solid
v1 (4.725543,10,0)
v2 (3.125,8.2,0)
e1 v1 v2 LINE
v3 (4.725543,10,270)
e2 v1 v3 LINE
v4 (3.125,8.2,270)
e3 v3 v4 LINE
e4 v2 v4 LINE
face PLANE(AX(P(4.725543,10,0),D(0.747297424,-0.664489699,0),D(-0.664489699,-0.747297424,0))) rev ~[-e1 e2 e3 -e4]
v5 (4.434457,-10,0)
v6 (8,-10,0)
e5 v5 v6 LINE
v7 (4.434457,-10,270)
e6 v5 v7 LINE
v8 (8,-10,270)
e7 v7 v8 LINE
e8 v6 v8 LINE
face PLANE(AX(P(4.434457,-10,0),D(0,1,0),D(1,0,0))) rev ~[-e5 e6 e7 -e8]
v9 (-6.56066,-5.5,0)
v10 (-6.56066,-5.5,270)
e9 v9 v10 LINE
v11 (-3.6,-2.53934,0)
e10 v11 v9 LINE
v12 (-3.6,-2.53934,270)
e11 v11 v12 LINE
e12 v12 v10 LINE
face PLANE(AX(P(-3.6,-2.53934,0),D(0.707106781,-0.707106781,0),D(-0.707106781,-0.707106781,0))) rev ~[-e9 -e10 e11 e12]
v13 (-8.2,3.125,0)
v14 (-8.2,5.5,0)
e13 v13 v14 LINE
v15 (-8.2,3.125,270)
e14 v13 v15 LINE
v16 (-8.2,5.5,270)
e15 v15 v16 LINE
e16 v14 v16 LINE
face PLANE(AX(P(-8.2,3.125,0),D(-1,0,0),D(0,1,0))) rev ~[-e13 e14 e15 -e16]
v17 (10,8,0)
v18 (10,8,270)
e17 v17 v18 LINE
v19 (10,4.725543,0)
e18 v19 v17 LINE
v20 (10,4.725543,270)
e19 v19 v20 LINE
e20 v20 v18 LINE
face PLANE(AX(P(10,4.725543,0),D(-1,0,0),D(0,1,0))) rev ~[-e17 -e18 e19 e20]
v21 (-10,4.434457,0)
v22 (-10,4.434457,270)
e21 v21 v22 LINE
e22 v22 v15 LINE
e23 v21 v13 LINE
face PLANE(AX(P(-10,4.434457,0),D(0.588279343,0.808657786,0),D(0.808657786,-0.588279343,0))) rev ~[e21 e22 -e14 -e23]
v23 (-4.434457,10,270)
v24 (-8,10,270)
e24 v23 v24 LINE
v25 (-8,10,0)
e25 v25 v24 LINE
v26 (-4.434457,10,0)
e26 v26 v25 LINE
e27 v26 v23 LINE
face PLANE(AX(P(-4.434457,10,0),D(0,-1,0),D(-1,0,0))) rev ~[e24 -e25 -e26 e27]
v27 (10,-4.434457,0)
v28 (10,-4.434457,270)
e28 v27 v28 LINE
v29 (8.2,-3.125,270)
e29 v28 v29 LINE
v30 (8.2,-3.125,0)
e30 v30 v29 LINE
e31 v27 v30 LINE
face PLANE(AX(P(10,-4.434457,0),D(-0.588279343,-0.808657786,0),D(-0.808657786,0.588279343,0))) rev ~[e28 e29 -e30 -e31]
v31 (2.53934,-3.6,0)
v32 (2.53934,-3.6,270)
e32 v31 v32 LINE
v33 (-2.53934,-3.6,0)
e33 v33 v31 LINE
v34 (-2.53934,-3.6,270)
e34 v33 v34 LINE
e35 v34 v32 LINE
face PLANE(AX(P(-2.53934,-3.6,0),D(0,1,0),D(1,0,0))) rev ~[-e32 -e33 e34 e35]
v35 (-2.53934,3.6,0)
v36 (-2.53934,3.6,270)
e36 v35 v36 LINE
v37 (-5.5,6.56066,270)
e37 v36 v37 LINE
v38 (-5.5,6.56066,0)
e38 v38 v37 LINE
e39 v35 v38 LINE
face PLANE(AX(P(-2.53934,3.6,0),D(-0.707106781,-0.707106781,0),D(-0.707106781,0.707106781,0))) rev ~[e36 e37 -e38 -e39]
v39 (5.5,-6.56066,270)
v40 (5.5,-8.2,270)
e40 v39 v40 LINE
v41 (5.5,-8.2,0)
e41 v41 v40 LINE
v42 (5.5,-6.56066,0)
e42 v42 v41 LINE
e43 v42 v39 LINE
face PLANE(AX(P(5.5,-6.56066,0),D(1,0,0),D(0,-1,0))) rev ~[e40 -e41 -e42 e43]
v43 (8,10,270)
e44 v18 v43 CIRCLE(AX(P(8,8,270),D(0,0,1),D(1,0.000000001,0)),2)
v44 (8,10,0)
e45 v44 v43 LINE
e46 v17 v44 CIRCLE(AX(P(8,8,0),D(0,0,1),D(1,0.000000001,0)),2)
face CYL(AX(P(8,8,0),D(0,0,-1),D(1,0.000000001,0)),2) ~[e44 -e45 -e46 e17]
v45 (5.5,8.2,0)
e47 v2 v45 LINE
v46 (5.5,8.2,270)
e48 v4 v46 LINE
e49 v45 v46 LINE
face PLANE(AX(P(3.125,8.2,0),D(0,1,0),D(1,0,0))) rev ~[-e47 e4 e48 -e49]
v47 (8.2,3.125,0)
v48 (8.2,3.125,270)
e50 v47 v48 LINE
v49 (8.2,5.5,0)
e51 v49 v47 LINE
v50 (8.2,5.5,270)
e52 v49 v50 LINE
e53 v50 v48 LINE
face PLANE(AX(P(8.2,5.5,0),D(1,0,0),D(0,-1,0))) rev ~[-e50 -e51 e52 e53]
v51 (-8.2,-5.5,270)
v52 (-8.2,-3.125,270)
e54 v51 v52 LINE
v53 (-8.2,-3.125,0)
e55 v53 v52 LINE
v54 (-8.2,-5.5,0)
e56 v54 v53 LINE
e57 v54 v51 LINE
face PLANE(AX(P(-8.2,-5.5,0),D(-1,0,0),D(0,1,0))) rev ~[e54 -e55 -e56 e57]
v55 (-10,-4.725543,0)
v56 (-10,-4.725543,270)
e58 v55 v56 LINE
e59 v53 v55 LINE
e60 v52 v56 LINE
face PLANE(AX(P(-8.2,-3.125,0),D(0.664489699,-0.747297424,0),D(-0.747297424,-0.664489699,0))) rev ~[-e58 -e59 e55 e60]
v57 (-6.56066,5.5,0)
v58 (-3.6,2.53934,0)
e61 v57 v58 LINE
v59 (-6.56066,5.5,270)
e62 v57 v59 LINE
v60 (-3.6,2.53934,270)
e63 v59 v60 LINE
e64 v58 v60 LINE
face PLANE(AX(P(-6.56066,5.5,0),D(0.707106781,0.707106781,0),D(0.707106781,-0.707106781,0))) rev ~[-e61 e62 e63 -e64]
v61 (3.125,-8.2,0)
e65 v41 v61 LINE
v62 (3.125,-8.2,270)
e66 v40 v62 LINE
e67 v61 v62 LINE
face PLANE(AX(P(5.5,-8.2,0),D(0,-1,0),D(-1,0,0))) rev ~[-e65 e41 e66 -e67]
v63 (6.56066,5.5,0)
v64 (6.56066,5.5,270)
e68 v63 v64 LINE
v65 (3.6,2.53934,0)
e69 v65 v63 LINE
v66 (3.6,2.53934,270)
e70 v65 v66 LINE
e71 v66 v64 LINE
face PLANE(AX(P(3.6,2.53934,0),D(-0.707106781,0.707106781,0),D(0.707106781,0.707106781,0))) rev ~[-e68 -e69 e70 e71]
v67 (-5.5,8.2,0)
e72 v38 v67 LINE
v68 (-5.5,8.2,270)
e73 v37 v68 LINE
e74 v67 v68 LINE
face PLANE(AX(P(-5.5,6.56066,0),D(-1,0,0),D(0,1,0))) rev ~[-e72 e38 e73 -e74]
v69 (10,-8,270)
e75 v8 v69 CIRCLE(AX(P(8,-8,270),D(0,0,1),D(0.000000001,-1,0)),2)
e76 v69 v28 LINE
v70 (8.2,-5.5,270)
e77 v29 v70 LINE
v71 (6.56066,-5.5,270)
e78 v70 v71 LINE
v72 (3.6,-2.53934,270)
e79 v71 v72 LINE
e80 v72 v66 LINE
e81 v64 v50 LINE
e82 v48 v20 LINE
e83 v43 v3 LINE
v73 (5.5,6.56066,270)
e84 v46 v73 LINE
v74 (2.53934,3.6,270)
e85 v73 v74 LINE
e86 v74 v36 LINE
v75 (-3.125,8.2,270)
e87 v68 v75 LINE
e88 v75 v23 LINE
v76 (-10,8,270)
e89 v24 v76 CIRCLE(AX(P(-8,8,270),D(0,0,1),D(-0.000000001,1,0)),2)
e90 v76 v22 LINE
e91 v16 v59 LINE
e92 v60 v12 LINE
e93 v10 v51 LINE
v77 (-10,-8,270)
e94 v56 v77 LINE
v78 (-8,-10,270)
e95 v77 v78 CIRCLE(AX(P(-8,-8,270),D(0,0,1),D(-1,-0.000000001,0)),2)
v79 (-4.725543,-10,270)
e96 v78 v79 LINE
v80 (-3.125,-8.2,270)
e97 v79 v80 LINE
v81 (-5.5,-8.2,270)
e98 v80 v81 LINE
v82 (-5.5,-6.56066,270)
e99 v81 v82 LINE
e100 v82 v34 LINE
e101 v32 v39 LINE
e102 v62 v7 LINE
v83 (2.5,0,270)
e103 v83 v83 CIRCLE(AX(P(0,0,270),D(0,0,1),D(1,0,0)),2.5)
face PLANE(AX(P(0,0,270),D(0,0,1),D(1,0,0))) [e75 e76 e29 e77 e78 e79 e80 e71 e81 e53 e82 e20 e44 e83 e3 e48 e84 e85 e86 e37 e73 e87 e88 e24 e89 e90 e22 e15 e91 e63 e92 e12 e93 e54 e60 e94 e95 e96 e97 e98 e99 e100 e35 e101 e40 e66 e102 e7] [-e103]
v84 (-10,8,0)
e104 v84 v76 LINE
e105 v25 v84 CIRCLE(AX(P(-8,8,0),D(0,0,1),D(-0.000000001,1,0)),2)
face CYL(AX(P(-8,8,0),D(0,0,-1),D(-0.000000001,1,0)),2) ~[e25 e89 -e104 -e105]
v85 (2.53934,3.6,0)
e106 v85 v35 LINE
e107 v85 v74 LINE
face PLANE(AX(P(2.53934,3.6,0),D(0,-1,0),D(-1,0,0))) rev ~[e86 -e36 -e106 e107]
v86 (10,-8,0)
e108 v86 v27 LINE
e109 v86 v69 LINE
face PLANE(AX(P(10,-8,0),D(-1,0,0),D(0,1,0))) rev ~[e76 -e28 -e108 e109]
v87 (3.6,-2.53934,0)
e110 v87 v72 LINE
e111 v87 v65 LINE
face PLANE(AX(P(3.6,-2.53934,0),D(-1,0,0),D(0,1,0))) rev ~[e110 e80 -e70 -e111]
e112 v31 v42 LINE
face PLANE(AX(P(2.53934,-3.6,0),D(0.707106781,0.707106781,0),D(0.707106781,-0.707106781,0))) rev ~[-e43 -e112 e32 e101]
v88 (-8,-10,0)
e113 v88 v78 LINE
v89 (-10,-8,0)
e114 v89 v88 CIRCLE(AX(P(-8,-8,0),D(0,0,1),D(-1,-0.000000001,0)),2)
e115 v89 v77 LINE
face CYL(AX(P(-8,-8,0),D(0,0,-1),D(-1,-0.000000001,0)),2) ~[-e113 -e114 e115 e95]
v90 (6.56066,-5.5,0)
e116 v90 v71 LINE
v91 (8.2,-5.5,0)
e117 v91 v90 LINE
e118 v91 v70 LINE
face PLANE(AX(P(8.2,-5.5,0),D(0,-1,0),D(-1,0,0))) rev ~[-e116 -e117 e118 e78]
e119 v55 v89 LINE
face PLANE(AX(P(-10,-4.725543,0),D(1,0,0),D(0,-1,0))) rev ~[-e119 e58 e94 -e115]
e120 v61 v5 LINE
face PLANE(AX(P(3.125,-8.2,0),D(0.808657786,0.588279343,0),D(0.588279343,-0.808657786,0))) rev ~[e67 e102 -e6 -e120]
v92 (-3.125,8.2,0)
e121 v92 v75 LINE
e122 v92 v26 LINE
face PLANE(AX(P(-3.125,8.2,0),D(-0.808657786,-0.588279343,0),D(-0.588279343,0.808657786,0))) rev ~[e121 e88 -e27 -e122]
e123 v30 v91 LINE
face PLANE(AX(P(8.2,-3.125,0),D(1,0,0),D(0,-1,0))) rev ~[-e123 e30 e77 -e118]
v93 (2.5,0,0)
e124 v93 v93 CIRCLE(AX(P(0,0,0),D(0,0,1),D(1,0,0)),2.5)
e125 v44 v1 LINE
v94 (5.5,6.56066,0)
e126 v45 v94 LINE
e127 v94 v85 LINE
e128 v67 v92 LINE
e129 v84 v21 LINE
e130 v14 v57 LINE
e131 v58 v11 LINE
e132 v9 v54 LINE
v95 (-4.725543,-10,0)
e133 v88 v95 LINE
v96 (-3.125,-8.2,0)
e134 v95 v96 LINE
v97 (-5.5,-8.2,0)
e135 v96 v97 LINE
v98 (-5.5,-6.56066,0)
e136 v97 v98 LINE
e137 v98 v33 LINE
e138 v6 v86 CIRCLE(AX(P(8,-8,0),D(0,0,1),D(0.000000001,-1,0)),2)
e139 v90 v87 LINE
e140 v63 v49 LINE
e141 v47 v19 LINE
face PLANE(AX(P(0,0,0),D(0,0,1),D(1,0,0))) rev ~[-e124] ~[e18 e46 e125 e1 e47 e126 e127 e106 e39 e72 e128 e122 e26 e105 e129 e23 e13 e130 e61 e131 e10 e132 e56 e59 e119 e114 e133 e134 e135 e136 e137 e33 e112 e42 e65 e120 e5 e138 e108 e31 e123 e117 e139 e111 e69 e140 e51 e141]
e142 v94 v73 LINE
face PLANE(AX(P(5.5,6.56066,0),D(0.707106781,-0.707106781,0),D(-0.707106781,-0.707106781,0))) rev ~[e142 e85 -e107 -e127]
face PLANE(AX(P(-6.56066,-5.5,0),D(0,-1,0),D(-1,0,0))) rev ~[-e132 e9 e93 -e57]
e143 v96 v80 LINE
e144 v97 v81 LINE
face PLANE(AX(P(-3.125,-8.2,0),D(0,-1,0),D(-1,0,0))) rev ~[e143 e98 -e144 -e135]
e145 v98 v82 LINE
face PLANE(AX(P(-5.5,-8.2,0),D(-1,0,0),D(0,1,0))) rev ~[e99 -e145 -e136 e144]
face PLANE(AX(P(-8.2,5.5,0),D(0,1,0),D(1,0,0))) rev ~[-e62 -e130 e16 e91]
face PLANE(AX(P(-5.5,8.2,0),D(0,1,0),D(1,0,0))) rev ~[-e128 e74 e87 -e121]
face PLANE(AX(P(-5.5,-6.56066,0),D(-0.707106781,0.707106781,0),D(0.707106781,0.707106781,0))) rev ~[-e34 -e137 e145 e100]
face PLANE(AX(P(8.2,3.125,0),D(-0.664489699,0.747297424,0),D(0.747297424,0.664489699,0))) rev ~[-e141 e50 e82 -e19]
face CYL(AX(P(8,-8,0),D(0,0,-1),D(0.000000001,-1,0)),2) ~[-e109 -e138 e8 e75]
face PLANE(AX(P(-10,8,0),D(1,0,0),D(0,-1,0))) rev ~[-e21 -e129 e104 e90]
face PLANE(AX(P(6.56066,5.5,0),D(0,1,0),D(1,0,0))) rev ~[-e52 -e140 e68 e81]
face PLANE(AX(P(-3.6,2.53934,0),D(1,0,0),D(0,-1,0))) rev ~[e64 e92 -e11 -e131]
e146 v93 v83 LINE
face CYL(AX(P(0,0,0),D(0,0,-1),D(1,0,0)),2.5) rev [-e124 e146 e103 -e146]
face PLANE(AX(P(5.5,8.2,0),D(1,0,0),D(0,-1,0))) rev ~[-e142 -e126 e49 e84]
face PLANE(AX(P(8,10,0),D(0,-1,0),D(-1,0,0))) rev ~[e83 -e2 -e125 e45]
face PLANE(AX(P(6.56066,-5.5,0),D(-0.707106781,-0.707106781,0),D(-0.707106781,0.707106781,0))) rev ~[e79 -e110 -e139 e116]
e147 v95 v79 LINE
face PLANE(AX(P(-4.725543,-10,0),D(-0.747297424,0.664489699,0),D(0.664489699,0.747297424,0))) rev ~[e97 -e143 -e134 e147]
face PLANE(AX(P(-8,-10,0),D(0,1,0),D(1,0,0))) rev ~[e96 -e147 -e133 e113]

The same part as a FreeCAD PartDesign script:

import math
import FreeCAD as App
import Part
import Sketcher

V = App.Vector

doc = App.newDocument("Part")
body = doc.addObject("PartDesign::Body", "Body")

# Sketch on XY plane
sketch1 = body.newObject("Sketcher::SketchObject", "Sketch")
sketch1.AttachmentSupport = (doc.getObject("XY_Plane"), [""])
sketch1.MapMode = "FlatFace"
sketch1.addGeometry(Part.LineSegment(V(-4.725543, -10, 0), V(-3.125, -8.2, 0)), False)
sketch1.addGeometry(Part.LineSegment(V(-3.125, -8.2, 0), V(-5.5, -8.2, 0)), False)
sketch1.addGeometry(Part.LineSegment(V(-5.5, -8.2, 0), V(-5.5, -6.56066, 0)), False)
sketch1.addGeometry(Part.LineSegment(V(-5.5, -6.56066, 0), V(-2.53934, -3.6, 0)), False)
sketch1.addGeometry(Part.LineSegment(V(-2.53934, -3.6, 0), V(2.53934, -3.6, 0)), False)
sketch1.addGeometry(Part.LineSegment(V(2.53934, -3.6, 0), V(5.5, -6.56066, 0)), False)
sketch1.addGeometry(Part.LineSegment(V(5.5, -6.56066, 0), V(5.5, -8.2, 0)), False)
sketch1.addGeometry(Part.LineSegment(V(5.5, -8.2, 0), V(3.125, -8.2, 0)), False)
sketch1.addGeometry(Part.LineSegment(V(3.125, -8.2, 0), V(4.434457, -10, 0)), False)
sketch1.addGeometry(Part.LineSegment(V(4.434457, -10, 0), V(8, -10, 0)), False)
sketch1.addGeometry(Part.ArcOfCircle(Part.Circle(V(8, -8, 0), V(0, 0, 1), 2), math.radians(-90), math.radians(0)), False)
sketch1.addGeometry(Part.LineSegment(V(10, -8, 0), V(10, -4.434457, 0)), False)
sketch1.addGeometry(Part.LineSegment(V(10, -4.434457, 0), V(8.2, -3.125, 0)), False)
sketch1.addGeometry(Part.LineSegment(V(8.2, -3.125, 0), V(8.2, -5.5, 0)), False)
sketch1.addGeometry(Part.LineSegment(V(8.2, -5.5, 0), V(6.56066, -5.5, 0)), False)
sketch1.addGeometry(Part.LineSegment(V(6.56066, -5.5, 0), V(3.6, -2.53934, 0)), False)
sketch1.addGeometry(Part.LineSegment(V(3.6, -2.53934, 0), V(3.6, 2.53934, 0)), False)
sketch1.addGeometry(Part.LineSegment(V(3.6, 2.53934, 0), V(6.56066, 5.5, 0)), False)
sketch1.addGeometry(Part.LineSegment(V(6.56066, 5.5, 0), V(8.2, 5.5, 0)), False)
sketch1.addGeometry(Part.LineSegment(V(8.2, 5.5, 0), V(8.2, 3.125, 0)), False)
sketch1.addGeometry(Part.LineSegment(V(8.2, 3.125, 0), V(10, 4.725543, 0)), False)
sketch1.addGeometry(Part.LineSegment(V(10, 4.725543, 0), V(10, 8, 0)), False)
sketch1.addGeometry(Part.ArcOfCircle(Part.Circle(V(8, 8, 0), V(0, 0, 1), 2), math.radians(0), math.radians(90)), False)
sketch1.addGeometry(Part.LineSegment(V(8, 10, 0), V(4.725543, 10, 0)), False)
sketch1.addGeometry(Part.LineSegment(V(4.725543, 10, 0), V(3.125, 8.2, 0)), False)
sketch1.addGeometry(Part.LineSegment(V(3.125, 8.2, 0), V(5.5, 8.2, 0)), False)
sketch1.addGeometry(Part.LineSegment(V(5.5, 8.2, 0), V(5.5, 6.56066, 0)), False)
sketch1.addGeometry(Part.LineSegment(V(5.5, 6.56066, 0), V(2.53934, 3.6, 0)), False)
sketch1.addGeometry(Part.LineSegment(V(2.53934, 3.6, 0), V(-2.53934, 3.6, 0)), False)
sketch1.addGeometry(Part.LineSegment(V(-2.53934, 3.6, 0), V(-5.5, 6.56066, 0)), False)
sketch1.addGeometry(Part.LineSegment(V(-5.5, 6.56066, 0), V(-5.5, 8.2, 0)), False)
sketch1.addGeometry(Part.LineSegment(V(-5.5, 8.2, 0), V(-3.125, 8.2, 0)), False)
sketch1.addGeometry(Part.LineSegment(V(-3.125, 8.2, 0), V(-4.434457, 10, 0)), False)
sketch1.addGeometry(Part.LineSegment(V(-4.434457, 10, 0), V(-8, 10, 0)), False)
sketch1.addGeometry(Part.ArcOfCircle(Part.Circle(V(-8, 8, 0), V(0, 0, 1), 2), math.radians(90), math.radians(180)), False)
sketch1.addGeometry(Part.LineSegment(V(-10, 8, 0), V(-10, 4.434457, 0)), False)
sketch1.addGeometry(Part.LineSegment(V(-10, 4.434457, 0), V(-8.2, 3.125, 0)), False)
sketch1.addGeometry(Part.LineSegment(V(-8.2, 3.125, 0), V(-8.2, 5.5, 0)), False)
sketch1.addGeometry(Part.LineSegment(V(-8.2, 5.5, 0), V(-6.56066, 5.5, 0)), False)
sketch1.addGeometry(Part.LineSegment(V(-6.56066, 5.5, 0), V(-3.6, 2.53934, 0)), False)
sketch1.addGeometry(Part.LineSegment(V(-3.6, 2.53934, 0), V(-3.6, -2.53934, 0)), False)
sketch1.addGeometry(Part.LineSegment(V(-3.6, -2.53934, 0), V(-6.56066, -5.5, 0)), False)
sketch1.addGeometry(Part.LineSegment(V(-6.56066, -5.5, 0), V(-8.2, -5.5, 0)), False)
sketch1.addGeometry(Part.LineSegment(V(-8.2, -5.5, 0), V(-8.2, -3.125, 0)), False)
sketch1.addGeometry(Part.LineSegment(V(-8.2, -3.125, 0), V(-10, -4.725543, 0)), False)
sketch1.addGeometry(Part.LineSegment(V(-10, -4.725543, 0), V(-10, -8, 0)), False)
sketch1.addGeometry(Part.ArcOfCircle(Part.Circle(V(-8, -8, 0), V(0, 0, 1), 2), math.radians(-180), math.radians(-90)), False)
sketch1.addGeometry(Part.LineSegment(V(-8, -10, 0), V(-4.725543, -10, 0)), False)
sketch1.addGeometry(Part.Circle(V(0, 0, 0), V(0, 0, 1), 2.5), False)
sketch1.addConstraint(Sketcher.Constraint("Coincident", 0, 2, 1, 1))
sketch1.addConstraint(Sketcher.Constraint("Coincident", 1, 2, 2, 1))
sketch1.addConstraint(Sketcher.Constraint("Coincident", 2, 2, 3, 1))
sketch1.addConstraint(Sketcher.Constraint("Coincident", 3, 2, 4, 1))
sketch1.addConstraint(Sketcher.Constraint("Coincident", 4, 2, 5, 1))
sketch1.addConstraint(Sketcher.Constraint("Coincident", 5, 2, 6, 1))
sketch1.addConstraint(Sketcher.Constraint("Coincident", 6, 2, 7, 1))
sketch1.addConstraint(Sketcher.Constraint("Coincident", 7, 2, 8, 1))
sketch1.addConstraint(Sketcher.Constraint("Coincident", 8, 2, 9, 1))
sketch1.addConstraint(Sketcher.Constraint("Tangent", 9, 2, 10, 1))
sketch1.addConstraint(Sketcher.Constraint("Tangent", 10, 2, 11, 1))
sketch1.addConstraint(Sketcher.Constraint("Coincident", 11, 2, 12, 1))
sketch1.addConstraint(Sketcher.Constraint("Coincident", 12, 2, 13, 1))
sketch1.addConstraint(Sketcher.Constraint("Coincident", 13, 2, 14, 1))
sketch1.addConstraint(Sketcher.Constraint("Coincident", 14, 2, 15, 1))
sketch1.addConstraint(Sketcher.Constraint("Coincident", 15, 2, 16, 1))
sketch1.addConstraint(Sketcher.Constraint("Coincident", 16, 2, 17, 1))
sketch1.addConstraint(Sketcher.Constraint("Coincident", 17, 2, 18, 1))
sketch1.addConstraint(Sketcher.Constraint("Coincident", 18, 2, 19, 1))
sketch1.addConstraint(Sketcher.Constraint("Coincident", 19, 2, 20, 1))
sketch1.addConstraint(Sketcher.Constraint("Coincident", 20, 2, 21, 1))
sketch1.addConstraint(Sketcher.Constraint("Tangent", 21, 2, 22, 1))
sketch1.addConstraint(Sketcher.Constraint("Tangent", 22, 2, 23, 1))
sketch1.addConstraint(Sketcher.Constraint("Coincident", 23, 2, 24, 1))
sketch1.addConstraint(Sketcher.Constraint("Coincident", 24, 2, 25, 1))
sketch1.addConstraint(Sketcher.Constraint("Coincident", 25, 2, 26, 1))
sketch1.addConstraint(Sketcher.Constraint("Coincident", 26, 2, 27, 1))
sketch1.addConstraint(Sketcher.Constraint("Coincident", 27, 2, 28, 1))
sketch1.addConstraint(Sketcher.Constraint("Coincident", 28, 2, 29, 1))
sketch1.addConstraint(Sketcher.Constraint("Coincident", 29, 2, 30, 1))
sketch1.addConstraint(Sketcher.Constraint("Coincident", 30, 2, 31, 1))
sketch1.addConstraint(Sketcher.Constraint("Coincident", 31, 2, 32, 1))
sketch1.addConstraint(Sketcher.Constraint("Coincident", 32, 2, 33, 1))
sketch1.addConstraint(Sketcher.Constraint("Tangent", 33, 2, 34, 1))
sketch1.addConstraint(Sketcher.Constraint("Tangent", 34, 2, 35, 1))
sketch1.addConstraint(Sketcher.Constraint("Coincident", 35, 2, 36, 1))
sketch1.addConstraint(Sketcher.Constraint("Coincident", 36, 2, 37, 1))
sketch1.addConstraint(Sketcher.Constraint("Coincident", 37, 2, 38, 1))
sketch1.addConstraint(Sketcher.Constraint("Coincident", 38, 2, 39, 1))
sketch1.addConstraint(Sketcher.Constraint("Coincident", 39, 2, 40, 1))
sketch1.addConstraint(Sketcher.Constraint("Coincident", 40, 2, 41, 1))
sketch1.addConstraint(Sketcher.Constraint("Coincident", 41, 2, 42, 1))
sketch1.addConstraint(Sketcher.Constraint("Coincident", 42, 2, 43, 1))
sketch1.addConstraint(Sketcher.Constraint("Coincident", 43, 2, 44, 1))
sketch1.addConstraint(Sketcher.Constraint("Coincident", 44, 2, 45, 1))
sketch1.addConstraint(Sketcher.Constraint("Tangent", 45, 2, 46, 1))
sketch1.addConstraint(Sketcher.Constraint("Tangent", 46, 2, 47, 1))
sketch1.addConstraint(Sketcher.Constraint("Coincident", 47, 2, 0, 1))
sketch1.addConstraint(Sketcher.Constraint("Horizontal", 1))
sketch1.addConstraint(Sketcher.Constraint("Vertical", 2))
sketch1.addConstraint(Sketcher.Constraint("Horizontal", 4))
sketch1.addConstraint(Sketcher.Constraint("Vertical", 6))
sketch1.addConstraint(Sketcher.Constraint("Horizontal", 7))
sketch1.addConstraint(Sketcher.Constraint("Horizontal", 9))
sketch1.addConstraint(Sketcher.Constraint("Vertical", 11))
sketch1.addConstraint(Sketcher.Constraint("Vertical", 13))
sketch1.addConstraint(Sketcher.Constraint("Horizontal", 14))
sketch1.addConstraint(Sketcher.Constraint("Vertical", 16))
sketch1.addConstraint(Sketcher.Constraint("Horizontal", 18))
sketch1.addConstraint(Sketcher.Constraint("Vertical", 19))
sketch1.addConstraint(Sketcher.Constraint("Vertical", 21))
sketch1.addConstraint(Sketcher.Constraint("Horizontal", 23))
sketch1.addConstraint(Sketcher.Constraint("Horizontal", 25))
sketch1.addConstraint(Sketcher.Constraint("Vertical", 26))
sketch1.addConstraint(Sketcher.Constraint("Horizontal", 28))
sketch1.addConstraint(Sketcher.Constraint("Vertical", 30))
sketch1.addConstraint(Sketcher.Constraint("Horizontal", 31))
sketch1.addConstraint(Sketcher.Constraint("Horizontal", 33))
sketch1.addConstraint(Sketcher.Constraint("Vertical", 35))
sketch1.addConstraint(Sketcher.Constraint("Vertical", 37))
sketch1.addConstraint(Sketcher.Constraint("Horizontal", 38))
sketch1.addConstraint(Sketcher.Constraint("Vertical", 40))
sketch1.addConstraint(Sketcher.Constraint("Horizontal", 42))
sketch1.addConstraint(Sketcher.Constraint("Vertical", 43))
sketch1.addConstraint(Sketcher.Constraint("Vertical", 45))
sketch1.addConstraint(Sketcher.Constraint("Horizontal", 47))
sketch1.addConstraint(Sketcher.Constraint("Coincident", 48, 3, -1, 1))
sketch1.addConstraint(Sketcher.Constraint("Equal", 10, 22))
sketch1.addConstraint(Sketcher.Constraint("Equal", 22, 34))
sketch1.addConstraint(Sketcher.Constraint("Equal", 34, 46))
sketch1.addConstraint(Sketcher.Constraint("Symmetric", 10, 3, 34, 3, -1, 1))
sketch1.addConstraint(Sketcher.Constraint("Symmetric", 22, 3, 46, 3, -1, 1))
sketch1.addConstraint(Sketcher.Constraint("Symmetric", 0, 2, 24, 2, -1, 1))
sketch1.addConstraint(Sketcher.Constraint("Symmetric", 2, 2, 26, 2, -1, 1))
sketch1.addConstraint(Sketcher.Constraint("Symmetric", 3, 2, 27, 2, -1, 1))
sketch1.addConstraint(Sketcher.Constraint("Symmetric", 5, 2, 29, 2, -1, 1))
sketch1.addConstraint(Sketcher.Constraint("Symmetric", 7, 2, 31, 2, -1, 1))
sketch1.addConstraint(Sketcher.Constraint("Symmetric", 12, 2, 36, 2, -1, 1))
sketch1.addConstraint(Sketcher.Constraint("Symmetric", 14, 2, 38, 2, -1, 1))
sketch1.addConstraint(Sketcher.Constraint("Symmetric", 15, 2, 39, 2, -1, 1))
sketch1.addConstraint(Sketcher.Constraint("Symmetric", 17, 2, 41, 2, -1, 1))
sketch1.addConstraint(Sketcher.Constraint("Symmetric", 19, 2, 43, 2, -1, 1))
sketch1.addConstraint(Sketcher.Constraint("Symmetric", 22, 3, 34, 3, -2))
sketch1.addConstraint(Sketcher.Constraint("Symmetric", 2, 2, 5, 2, -2))
sketch1.addConstraint(Sketcher.Constraint("Symmetric", 0, 2, 7, 2, -2))
sketch1.addConstraint(Sketcher.Constraint("Symmetric", 19, 2, 36, 2, -2))
sketch1.addConstraint(Sketcher.Constraint("Symmetric", 17, 2, 38, 2, -2))
sketch1.addConstraint(Sketcher.Constraint("Perpendicular", 3, 5))
sketch1.addConstraint(Sketcher.Constraint("Parallel", 5, 15))
sketch1.addConstraint(Sketcher.Constraint("Perpendicular", 15, 17))
sketch1.addConstraint(Sketcher.Constraint("Parallel", 0, 24))
sketch1.addConstraint(Sketcher.Constraint("Perpendicular", 27, 29))
sketch1.addConstraint(Sketcher.Constraint("Parallel", 8, 32))
sketch1.addConstraint(Sketcher.Constraint("Parallel", 12, 36))
sketch1.addConstraint(Sketcher.Constraint("Perpendicular", 39, 41))
sketch1.addConstraint(Sketcher.Constraint("Parallel", 20, 44))
sketch1.addConstraint(Sketcher.Constraint("Horizontal", 16, 2, 39, 2))
sketch1.addConstraint(Sketcher.Constraint("Equal", 42, 2))
sketch1.addConstraint(Sketcher.Constraint("Equal", 33, 11))
sketch1.addConstraint(Sketcher.Constraint("Equal", 31, 13))
sketch1.addConstraint(Sketcher.Constraint("Equal", 28, 16))
sketch1.addConstraint(Sketcher.Constraint("Equal", 47, 21))
sketch1.addConstraint(Sketcher.Constraint("Equal", 8, 12))
sketch1.addConstraint(Sketcher.Constraint("Equal", 5, 15))
sketch1.addConstraint(Sketcher.Constraint("Equal", 0, 20))
sketch1.addConstraint(Sketcher.Constraint("Diameter", 48, 5.0))
sketch1.addConstraint(Sketcher.Constraint("Radius", 10, 2.0))
sketch1.addConstraint(Sketcher.Constraint("DistanceX", -1, 1, 10, 3, 8.0))
sketch1.addConstraint(Sketcher.Constraint("DistanceY", 0, 2, -1, 1, 8.2))
sketch1.addConstraint(Sketcher.Constraint("DistanceX", 1, 2, -1, 1, 5.5))
sketch1.addConstraint(Sketcher.Constraint("DistanceY", 3, 2, -1, 1, 3.6))
sketch1.addConstraint(Sketcher.Constraint("DistanceX", 1, 2, 1, 1, 2.375))
sketch1.addConstraint(Sketcher.Constraint("DistanceX", 4, 1, 4, 2, 5.07868))
sketch1.addConstraint(Sketcher.Constraint("Distance", 0, 2.40868))
sketch1.addConstraint(Sketcher.Constraint("Distance", 8, 2.225911))
pad1 = body.newObject("PartDesign::Pad", "Pad")
pad1.Profile = sketch1
pad1.Length = 270

doc.recompute()
